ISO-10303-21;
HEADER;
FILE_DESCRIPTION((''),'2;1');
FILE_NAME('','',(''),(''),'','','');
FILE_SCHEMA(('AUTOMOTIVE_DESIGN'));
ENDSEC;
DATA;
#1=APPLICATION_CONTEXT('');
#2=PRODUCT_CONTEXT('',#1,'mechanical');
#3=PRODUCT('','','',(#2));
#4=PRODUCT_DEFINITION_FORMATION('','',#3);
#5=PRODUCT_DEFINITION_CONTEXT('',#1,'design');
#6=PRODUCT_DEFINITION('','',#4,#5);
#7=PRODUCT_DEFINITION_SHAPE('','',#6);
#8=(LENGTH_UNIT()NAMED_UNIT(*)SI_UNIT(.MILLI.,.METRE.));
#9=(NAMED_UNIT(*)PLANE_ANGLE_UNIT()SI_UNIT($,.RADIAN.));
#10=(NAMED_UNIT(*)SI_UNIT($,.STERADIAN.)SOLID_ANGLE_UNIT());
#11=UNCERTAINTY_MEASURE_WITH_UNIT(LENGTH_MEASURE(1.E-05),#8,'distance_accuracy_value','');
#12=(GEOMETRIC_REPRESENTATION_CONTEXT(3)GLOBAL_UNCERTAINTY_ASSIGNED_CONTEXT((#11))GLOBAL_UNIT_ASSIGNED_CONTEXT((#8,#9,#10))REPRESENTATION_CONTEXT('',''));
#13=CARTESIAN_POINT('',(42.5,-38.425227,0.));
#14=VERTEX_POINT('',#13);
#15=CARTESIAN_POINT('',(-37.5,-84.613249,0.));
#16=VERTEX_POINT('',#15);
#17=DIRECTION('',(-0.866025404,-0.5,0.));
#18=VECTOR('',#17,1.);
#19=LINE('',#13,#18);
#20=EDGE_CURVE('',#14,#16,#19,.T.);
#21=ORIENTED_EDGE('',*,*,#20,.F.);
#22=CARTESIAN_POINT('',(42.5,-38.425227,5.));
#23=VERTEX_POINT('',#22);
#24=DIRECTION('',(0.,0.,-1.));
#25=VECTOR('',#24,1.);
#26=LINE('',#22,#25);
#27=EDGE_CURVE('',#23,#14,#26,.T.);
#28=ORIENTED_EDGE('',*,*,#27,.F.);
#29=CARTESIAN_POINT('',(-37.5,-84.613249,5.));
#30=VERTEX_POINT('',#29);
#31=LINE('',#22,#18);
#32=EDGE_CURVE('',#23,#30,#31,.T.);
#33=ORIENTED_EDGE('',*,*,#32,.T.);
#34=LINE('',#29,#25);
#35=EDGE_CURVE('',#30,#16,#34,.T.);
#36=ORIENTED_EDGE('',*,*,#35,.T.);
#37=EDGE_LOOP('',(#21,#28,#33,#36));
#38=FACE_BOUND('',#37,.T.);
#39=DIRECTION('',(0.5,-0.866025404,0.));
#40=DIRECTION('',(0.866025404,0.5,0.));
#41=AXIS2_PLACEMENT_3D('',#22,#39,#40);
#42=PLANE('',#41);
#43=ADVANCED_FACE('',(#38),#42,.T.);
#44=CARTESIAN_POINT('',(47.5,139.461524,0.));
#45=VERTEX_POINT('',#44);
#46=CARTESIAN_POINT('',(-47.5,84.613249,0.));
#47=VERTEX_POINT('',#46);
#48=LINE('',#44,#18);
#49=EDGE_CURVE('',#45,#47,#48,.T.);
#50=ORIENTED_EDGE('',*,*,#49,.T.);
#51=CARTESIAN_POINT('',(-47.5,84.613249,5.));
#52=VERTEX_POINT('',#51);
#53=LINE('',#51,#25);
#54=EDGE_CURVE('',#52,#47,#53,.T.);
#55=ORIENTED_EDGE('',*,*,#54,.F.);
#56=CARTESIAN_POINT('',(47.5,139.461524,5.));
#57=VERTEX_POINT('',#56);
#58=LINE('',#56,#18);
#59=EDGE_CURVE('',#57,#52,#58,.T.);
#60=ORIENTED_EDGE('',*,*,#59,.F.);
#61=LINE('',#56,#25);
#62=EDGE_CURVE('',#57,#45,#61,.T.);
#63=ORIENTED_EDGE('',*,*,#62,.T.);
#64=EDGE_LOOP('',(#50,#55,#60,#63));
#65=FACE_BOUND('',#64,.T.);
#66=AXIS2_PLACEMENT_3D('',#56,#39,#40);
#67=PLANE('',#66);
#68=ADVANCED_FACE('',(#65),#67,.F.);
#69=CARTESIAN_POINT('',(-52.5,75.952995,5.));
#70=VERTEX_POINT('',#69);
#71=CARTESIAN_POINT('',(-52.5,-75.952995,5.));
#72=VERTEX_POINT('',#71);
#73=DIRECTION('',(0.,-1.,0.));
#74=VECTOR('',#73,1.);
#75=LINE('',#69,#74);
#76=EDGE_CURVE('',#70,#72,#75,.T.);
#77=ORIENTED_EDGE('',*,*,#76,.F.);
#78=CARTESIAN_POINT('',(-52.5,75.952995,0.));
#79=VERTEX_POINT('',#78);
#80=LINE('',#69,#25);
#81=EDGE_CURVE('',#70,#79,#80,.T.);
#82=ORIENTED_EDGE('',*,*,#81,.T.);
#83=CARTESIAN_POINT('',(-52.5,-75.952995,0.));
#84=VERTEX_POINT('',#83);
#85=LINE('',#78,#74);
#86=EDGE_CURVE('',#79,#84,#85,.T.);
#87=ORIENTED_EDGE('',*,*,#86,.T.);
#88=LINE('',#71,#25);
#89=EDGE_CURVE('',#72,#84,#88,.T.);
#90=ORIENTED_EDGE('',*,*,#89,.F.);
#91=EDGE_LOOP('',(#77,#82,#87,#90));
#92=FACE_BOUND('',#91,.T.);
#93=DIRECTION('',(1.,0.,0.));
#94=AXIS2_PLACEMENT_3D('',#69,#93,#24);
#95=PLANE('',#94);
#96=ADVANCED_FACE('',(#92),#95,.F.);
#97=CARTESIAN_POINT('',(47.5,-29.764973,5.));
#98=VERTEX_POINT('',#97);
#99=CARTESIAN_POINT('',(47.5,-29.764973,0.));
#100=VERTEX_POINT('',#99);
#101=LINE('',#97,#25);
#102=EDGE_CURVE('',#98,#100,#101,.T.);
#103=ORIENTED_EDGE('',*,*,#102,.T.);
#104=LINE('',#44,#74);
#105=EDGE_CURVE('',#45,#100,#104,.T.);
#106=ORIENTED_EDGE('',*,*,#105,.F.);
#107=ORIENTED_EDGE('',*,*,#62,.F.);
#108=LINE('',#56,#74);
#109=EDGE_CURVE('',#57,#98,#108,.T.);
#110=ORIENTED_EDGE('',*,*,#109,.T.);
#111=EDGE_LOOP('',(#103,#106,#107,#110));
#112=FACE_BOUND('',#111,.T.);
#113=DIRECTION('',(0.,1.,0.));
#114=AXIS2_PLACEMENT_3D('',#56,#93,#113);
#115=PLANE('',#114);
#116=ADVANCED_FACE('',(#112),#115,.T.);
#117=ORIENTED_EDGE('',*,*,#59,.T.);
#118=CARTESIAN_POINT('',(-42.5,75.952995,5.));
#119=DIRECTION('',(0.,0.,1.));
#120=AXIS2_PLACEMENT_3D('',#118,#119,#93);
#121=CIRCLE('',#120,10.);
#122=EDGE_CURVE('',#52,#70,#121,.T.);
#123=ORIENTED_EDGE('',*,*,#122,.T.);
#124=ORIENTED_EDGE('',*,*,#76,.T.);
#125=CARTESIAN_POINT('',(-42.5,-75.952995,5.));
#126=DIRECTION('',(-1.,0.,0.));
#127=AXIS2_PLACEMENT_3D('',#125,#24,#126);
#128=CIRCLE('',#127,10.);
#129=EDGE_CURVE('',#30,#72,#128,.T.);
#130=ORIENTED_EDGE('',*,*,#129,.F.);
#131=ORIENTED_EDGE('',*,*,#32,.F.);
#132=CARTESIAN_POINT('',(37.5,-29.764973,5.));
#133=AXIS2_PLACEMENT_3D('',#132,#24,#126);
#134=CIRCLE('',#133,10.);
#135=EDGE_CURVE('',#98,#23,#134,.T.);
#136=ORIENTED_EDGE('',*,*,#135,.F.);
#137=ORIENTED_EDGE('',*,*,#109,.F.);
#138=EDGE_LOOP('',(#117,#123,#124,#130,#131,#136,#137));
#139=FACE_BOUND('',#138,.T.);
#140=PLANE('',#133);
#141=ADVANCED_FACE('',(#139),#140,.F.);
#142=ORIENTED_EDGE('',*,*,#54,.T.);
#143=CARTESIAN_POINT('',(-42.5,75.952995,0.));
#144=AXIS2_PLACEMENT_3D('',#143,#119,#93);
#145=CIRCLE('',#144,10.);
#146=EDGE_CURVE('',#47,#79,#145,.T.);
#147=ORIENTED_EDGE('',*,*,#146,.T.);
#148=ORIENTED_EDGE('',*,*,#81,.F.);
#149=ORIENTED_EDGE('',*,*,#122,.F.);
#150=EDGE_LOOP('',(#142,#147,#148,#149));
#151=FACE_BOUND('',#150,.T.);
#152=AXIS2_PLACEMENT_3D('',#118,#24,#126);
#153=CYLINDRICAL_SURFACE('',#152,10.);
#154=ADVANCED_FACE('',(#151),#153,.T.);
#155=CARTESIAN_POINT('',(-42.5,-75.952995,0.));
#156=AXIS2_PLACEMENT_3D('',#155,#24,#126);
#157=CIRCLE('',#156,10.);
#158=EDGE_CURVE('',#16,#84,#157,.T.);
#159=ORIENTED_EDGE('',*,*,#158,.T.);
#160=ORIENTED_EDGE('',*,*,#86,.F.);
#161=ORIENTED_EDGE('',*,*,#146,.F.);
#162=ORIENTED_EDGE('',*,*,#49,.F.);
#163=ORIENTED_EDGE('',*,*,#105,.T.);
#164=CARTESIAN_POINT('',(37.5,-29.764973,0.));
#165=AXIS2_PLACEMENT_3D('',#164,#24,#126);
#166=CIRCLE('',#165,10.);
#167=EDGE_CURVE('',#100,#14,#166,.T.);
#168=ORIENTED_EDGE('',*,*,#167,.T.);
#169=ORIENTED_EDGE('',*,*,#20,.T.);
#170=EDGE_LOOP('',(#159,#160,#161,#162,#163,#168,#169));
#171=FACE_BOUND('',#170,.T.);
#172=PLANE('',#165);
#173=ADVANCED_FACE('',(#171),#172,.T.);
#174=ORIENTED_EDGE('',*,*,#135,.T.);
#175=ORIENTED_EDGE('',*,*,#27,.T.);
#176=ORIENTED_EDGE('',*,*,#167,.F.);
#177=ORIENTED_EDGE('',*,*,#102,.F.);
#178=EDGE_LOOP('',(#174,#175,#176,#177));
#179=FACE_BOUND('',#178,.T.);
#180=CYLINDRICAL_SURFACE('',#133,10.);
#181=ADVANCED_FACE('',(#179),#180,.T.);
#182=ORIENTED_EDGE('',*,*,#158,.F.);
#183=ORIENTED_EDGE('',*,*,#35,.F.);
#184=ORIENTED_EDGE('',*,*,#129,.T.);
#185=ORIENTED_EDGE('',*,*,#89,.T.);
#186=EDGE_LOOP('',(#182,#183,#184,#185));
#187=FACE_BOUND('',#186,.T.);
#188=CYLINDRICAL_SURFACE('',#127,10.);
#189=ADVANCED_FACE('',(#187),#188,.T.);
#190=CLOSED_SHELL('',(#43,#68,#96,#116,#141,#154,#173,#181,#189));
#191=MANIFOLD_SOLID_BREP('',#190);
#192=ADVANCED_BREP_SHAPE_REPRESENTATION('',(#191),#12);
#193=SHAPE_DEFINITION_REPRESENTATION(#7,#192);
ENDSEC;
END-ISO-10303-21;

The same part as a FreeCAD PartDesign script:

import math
import FreeCAD as App
import Part
import Sketcher
from FreeCAD import Vector
Q = App.Units.Quantity

doc = App.newDocument("Part")
params = doc.addObject("Spreadsheet::Sheet", "Params")
for row, (alias, value) in enumerate([
    ("sketch1_radius", "10 mm"),
    ("pad1_length", "5 mm"),
], start=1):
    params.set(f"A{row}", alias)
    params.set(f"B{row}", "=" + value)
    params.setAlias(f"B{row}", alias)

body = doc.addObject("PartDesign::Body", "Body")

# Sketch on XY plane
sketch1 = body.newObject("Sketcher::SketchObject", "Sketch")
sketch1.AttachmentSupport = (doc.getObject("XY_Plane"), [""])
sketch1.MapMode = "FlatFace"
sketch1.addGeometry([
    Part.LineSegment(Vector(47.5, -29.764973, 0), Vector(47.5, 139.461524, 0)),  # 0
    Part.LineSegment(Vector(47.5, 139.461524, 0), Vector(-47.5, 84.613249, 0)),  # 1
    Part.ArcOfCircle(Part.Circle(Vector(-42.5, 75.952995, 0), Vector(0, 0, 1), 10), math.radians(120), math.radians(180)),  # 2
    Part.LineSegment(Vector(-52.5, 75.952995, 0), Vector(-52.5, -75.952995, 0)),  # 3
    Part.ArcOfCircle(Part.Circle(Vector(-42.5, -75.952995, 0), Vector(0, 0, 1), 10), math.radians(180), math.radians(300)),  # 4
    Part.LineSegment(Vector(-37.5, -84.613249, 0), Vector(42.5, -38.425227, 0)),  # 5
    Part.ArcOfCircle(Part.Circle(Vector(37.5, -29.764973, 0), Vector(0, 0, 1), 10), math.radians(-60), math.radians(0)),  # 6
], False)
sketch1.addConstraint([
    Sketcher.Constraint("Coincident", 0, 2, 1, 1),
    Sketcher.Constraint("Tangent", 1, 2, 2, 1),
    Sketcher.Constraint("Tangent", 2, 2, 3, 1),
    Sketcher.Constraint("Tangent", 3, 2, 4, 1),
    Sketcher.Constraint("Tangent", 4, 2, 5, 1),
    Sketcher.Constraint("Tangent", 5, 2, 6, 1),
    Sketcher.Constraint("Tangent", 6, 2, 0, 1),
    Sketcher.Constraint("Vertical", 0),
    Sketcher.Constraint("Vertical", 3),
    Sketcher.Constraint("Equal", 2, 4),
    Sketcher.Constraint("Equal", 4, 6),
    Sketcher.Constraint("Parallel", 1, 5),
    Sketcher.Constraint("Radius", 2, 10.0),
    Sketcher.Constraint("Angle", 1, Q("-150 deg")),
    Sketcher.Constraint("DistanceX", 4, 3, 6, 3, 80.0),
    Sketcher.Constraint("DistanceX", 2, 3, -1, 1, 42.5),
    Sketcher.Constraint("DistanceY", 3, 2, 3, 1, 151.905989),
    Sketcher.Constraint("DistanceY", -1, 1, 1, 2, 84.613249),
])
sketch1.setExpression("Constraints[12]", "Params.sketch1_radius")
pad1 = body.newObject("PartDesign::Pad", "Pad")
pad1.Profile = sketch1
pad1.setExpression("Length", "Params.pad1_length")

doc.recompute()
